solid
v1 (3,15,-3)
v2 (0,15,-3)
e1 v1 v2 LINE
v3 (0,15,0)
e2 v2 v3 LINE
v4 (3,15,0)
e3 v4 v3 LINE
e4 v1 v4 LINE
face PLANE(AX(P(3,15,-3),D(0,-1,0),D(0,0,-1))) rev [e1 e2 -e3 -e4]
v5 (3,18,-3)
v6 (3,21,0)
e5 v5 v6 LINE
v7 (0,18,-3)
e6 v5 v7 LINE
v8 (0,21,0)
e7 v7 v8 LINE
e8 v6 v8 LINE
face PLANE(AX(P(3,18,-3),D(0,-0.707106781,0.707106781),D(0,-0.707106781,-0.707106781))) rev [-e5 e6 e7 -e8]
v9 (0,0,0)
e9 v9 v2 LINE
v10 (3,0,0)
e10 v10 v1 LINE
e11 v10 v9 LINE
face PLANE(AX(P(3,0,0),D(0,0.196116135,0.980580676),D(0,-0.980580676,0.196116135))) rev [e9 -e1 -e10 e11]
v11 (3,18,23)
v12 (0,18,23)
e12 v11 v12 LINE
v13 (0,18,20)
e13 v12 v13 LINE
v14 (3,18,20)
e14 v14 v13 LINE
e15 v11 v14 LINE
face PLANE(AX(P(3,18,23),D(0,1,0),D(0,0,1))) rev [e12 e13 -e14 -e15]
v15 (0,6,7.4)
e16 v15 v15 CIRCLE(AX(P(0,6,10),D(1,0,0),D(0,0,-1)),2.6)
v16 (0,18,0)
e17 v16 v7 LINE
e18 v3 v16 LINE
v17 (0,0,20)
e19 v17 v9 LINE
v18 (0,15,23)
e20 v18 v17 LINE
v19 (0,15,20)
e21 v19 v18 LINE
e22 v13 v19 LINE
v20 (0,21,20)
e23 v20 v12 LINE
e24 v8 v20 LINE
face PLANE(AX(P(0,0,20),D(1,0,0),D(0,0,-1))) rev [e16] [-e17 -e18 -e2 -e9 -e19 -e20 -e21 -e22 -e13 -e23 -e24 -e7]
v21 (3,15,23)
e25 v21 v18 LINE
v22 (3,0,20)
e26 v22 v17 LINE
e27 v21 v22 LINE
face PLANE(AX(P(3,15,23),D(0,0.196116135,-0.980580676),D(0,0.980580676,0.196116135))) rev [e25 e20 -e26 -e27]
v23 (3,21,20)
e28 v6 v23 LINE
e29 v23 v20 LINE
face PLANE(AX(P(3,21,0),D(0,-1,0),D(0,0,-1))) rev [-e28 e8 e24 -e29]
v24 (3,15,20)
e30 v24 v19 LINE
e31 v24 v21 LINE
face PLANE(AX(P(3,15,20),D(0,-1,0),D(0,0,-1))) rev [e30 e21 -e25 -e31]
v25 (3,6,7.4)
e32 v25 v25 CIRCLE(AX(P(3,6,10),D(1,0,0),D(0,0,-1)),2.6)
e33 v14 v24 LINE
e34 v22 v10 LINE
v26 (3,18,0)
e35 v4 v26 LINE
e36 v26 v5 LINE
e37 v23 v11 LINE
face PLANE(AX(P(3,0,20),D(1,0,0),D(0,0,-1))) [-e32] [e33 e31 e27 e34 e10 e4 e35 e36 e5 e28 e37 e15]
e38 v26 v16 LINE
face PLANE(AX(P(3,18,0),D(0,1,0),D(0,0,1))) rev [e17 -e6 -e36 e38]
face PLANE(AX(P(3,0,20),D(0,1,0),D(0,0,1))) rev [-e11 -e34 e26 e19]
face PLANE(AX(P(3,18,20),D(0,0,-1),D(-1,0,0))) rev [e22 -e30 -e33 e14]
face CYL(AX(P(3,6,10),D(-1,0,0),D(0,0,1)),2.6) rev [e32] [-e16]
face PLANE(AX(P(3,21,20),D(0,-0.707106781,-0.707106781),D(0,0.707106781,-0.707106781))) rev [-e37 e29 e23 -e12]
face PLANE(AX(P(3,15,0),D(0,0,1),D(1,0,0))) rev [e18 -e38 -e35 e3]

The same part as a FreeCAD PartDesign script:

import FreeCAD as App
import Part
import Sketcher

V = App.Vector
Q = App.Units.Quantity

doc = App.newDocument("Part")
params = doc.addObject("Spreadsheet::Sheet", "Params")
for row, (alias, value) in enumerate([
    ("sketch1_diameter", "5.2 mm"),
    ("sketch1_width", "3 mm"),
    ("sketch1_height", "20 mm"),
    ("pad1_length", "3 mm"),
], start=1):
    params.set(f"A{row}", alias)
    params.set(f"B{row}", "=" + value)
    params.setAlias(f"B{row}", alias)

body = doc.addObject("PartDesign::Body", "Body")

# Sketch on YZ plane
sketch1 = body.newObject("Sketcher::SketchObject", "Sketch")
sketch1.AttachmentSupport = (doc.getObject("YZ_Plane"), [""])
sketch1.MapMode = "FlatFace"
sketch1.addGeometry([
    Part.LineSegment(V(0, 20, 0), V(0, 0, 0)),  # 0
    Part.LineSegment(V(0, 0, 0), V(15, -3, 0)),  # 1
    Part.LineSegment(V(15, -3, 0), V(15, 0, 0)),  # 2
    Part.LineSegment(V(15, 0, 0), V(18, 0, 0)),  # 3
    Part.LineSegment(V(18, 0, 0), V(18, -3, 0)),  # 4
    Part.LineSegment(V(18, -3, 0), V(21, 0, 0)),  # 5
    Part.LineSegment(V(21, 0, 0), V(21, 20, 0)),  # 6
    Part.LineSegment(V(21, 20, 0), V(18, 23, 0)),  # 7
    Part.LineSegment(V(18, 23, 0), V(18, 20, 0)),  # 8
    Part.LineSegment(V(18, 20, 0), V(15, 20, 0)),  # 9
    Part.LineSegment(V(15, 20, 0), V(15, 23, 0)),  # 10
    Part.LineSegment(V(15, 23, 0), V(0, 20, 0)),  # 11
    Part.Circle(V(6, 10, 0), V(0, 0, 1), 2.6),  # 12
], False)
sketch1.addConstraint([
    Sketcher.Constraint("Coincident", 0, 2, 1, 1),
    Sketcher.Constraint("Coincident", 1, 2, 2, 1),
    Sketcher.Constraint("Coincident", 2, 2, 3, 1),
    Sketcher.Constraint("Coincident", 3, 2, 4, 1),
    Sketcher.Constraint("Coincident", 4, 2, 5, 1),
    Sketcher.Constraint("Coincident", 5, 2, 6, 1),
    Sketcher.Constraint("Coincident", 6, 2, 7, 1),
    Sketcher.Constraint("Coincident", 7, 2, 8, 1),
    Sketcher.Constraint("Coincident", 8, 2, 9, 1),
    Sketcher.Constraint("Coincident", 9, 2, 10, 1),
    Sketcher.Constraint("Coincident", 10, 2, 11, 1),
    Sketcher.Constraint("Coincident", 11, 2, 0, 1),
    Sketcher.Constraint("Vertical", 0),
    Sketcher.Constraint("Vertical", 2),
    Sketcher.Constraint("Horizontal", 3),
    Sketcher.Constraint("Vertical", 4),
    Sketcher.Constraint("Vertical", 6),
    Sketcher.Constraint("Vertical", 8),
    Sketcher.Constraint("Horizontal", 9),
    Sketcher.Constraint("Vertical", 10),
    Sketcher.Constraint("Coincident", 0, 2, -1, 1),
    Sketcher.Constraint("PointOnObject", 2, 2, -1),
    Sketcher.Constraint("PointOnObject", 5, 2, -1),
    Sketcher.Constraint("Perpendicular", 5, 7),
    Sketcher.Constraint("Horizontal", 1, 2, 4, 2),
    Sketcher.Constraint("Horizontal", 6, 2, 8, 2),
    Sketcher.Constraint("Horizontal", 7, 2, 10, 2),
    Sketcher.Constraint("Horizontal", 9, 2, 11, 2),
    Sketcher.Constraint("Vertical", 4, 2, 7, 2),
    Sketcher.Constraint("Vertical", 2, 2, 9, 2),
    Sketcher.Constraint("Equal", 9, 2),
    Sketcher.Constraint("Equal", 4, 8),
    Sketcher.Constraint("Diameter", 12, Q("5.2 mm")),
    Sketcher.Constraint("DistanceX", 3, 1, 3, 2, Q("3 mm")),
    Sketcher.Constraint("DistanceY", 0, 2, 0, 1, Q("20 mm")),
    Sketcher.Constraint("DistanceX", -1, 1, 12, 3, Q("6 mm")),
    Sketcher.Constraint("DistanceY", -1, 1, 12, 3, Q("10 mm")),
    Sketcher.Constraint("DistanceX", -1, 1, 1, 2, Q("15 mm")),
])
sketch1.setExpression("Constraints[32]", "Params.sketch1_diameter")
sketch1.setExpression("Constraints[33]", "Params.sketch1_width")
sketch1.setExpression("Constraints[34]", "Params.sketch1_height")
pad1 = body.newObject("PartDesign::Pad", "Pad")
pad1.Profile = sketch1
pad1.setExpression("Length", "Params.pad1_length")

doc.recompute()
